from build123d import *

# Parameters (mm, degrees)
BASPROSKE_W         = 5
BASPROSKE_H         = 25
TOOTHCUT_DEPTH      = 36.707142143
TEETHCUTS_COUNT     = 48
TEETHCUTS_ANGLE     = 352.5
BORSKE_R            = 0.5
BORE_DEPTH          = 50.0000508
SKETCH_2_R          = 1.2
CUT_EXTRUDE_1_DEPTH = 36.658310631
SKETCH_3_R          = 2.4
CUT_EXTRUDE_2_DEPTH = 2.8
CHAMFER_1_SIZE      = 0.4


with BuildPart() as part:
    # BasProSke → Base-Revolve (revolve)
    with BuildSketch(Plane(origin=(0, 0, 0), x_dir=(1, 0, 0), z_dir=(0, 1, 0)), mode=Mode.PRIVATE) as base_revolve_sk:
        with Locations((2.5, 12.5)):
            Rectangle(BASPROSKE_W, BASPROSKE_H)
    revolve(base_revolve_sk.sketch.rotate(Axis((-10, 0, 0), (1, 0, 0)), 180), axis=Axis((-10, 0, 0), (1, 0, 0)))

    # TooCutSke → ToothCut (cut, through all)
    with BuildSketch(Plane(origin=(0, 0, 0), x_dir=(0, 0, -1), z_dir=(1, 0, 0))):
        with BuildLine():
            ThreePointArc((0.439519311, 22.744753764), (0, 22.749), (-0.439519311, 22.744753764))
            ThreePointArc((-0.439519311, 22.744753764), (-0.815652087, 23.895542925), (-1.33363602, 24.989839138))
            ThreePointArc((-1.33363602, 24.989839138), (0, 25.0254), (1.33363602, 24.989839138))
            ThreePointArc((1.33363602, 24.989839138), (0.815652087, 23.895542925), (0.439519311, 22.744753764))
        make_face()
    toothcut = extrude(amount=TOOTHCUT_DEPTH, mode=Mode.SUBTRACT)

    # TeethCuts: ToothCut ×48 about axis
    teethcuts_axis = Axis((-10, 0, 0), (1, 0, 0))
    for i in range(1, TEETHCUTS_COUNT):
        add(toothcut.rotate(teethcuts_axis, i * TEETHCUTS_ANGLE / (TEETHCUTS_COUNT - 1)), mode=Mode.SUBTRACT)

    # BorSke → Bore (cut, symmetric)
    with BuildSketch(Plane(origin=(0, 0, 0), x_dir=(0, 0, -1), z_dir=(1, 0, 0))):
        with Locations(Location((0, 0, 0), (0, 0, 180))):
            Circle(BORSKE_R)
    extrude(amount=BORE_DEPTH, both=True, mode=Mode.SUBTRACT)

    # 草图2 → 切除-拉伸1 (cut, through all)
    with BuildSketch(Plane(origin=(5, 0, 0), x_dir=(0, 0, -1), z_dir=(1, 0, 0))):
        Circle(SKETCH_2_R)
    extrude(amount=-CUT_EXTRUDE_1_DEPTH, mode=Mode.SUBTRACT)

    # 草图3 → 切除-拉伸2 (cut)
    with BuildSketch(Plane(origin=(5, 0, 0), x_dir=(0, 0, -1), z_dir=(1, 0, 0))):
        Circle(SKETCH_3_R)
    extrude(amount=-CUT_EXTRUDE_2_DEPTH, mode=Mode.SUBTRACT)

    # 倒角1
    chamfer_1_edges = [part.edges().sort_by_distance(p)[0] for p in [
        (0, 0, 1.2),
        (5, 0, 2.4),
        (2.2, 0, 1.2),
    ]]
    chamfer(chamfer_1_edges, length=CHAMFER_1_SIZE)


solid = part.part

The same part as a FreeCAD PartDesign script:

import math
import FreeCAD as App
import Part
import Sketcher
Q = App.Units.Quantity


def edges_at(feature, points):
    """Names of the edges that pass closest to the given points."""
    edges = feature.Shape.Edges
    near = lambda p: min(range(len(edges)), key=lambda i: edges[i].distToShape(Part.Vertex(*p))[0])
    return sorted({f"Edge{near(p) + 1}" for p in points})

doc = App.newDocument("Part")
body = doc.addObject("PartDesign::Body", "Body")

# Sketch on XZ plane
sketch1 = doc.addObject("Sketcher::SketchObject", "Sketch")
body.addObject(sketch1)
sketch1.AttachmentSupport = (doc.XZ_Plane, [""])
sketch1.MapMode = "FlatFace"
sketch1.addGeometry(Part.LineSegment(App.Vector(0, -25, 0), App.Vector(0, 0, 0)), False)
sketch1.addGeometry(Part.LineSegment(App.Vector(0, 0, 0), App.Vector(5, 0, 0)), False)
sketch1.addGeometry(Part.LineSegment(App.Vector(5, 0, 0), App.Vector(5, -25, 0)), False)
sketch1.addGeometry(Part.LineSegment(App.Vector(5, -25, 0), App.Vector(0, -25, 0)), False)
sketch1.addConstraint(Sketcher.Constraint("Coincident", 0, 2, 1, 1))
sketch1.addConstraint(Sketcher.Constraint("Coincident", 1, 2, 2, 1))
sketch1.addConstraint(Sketcher.Constraint("Coincident", 2, 2, 3, 1))
sketch1.addConstraint(Sketcher.Constraint("Coincident", 3, 2, 0, 1))
sketch1.addConstraint(Sketcher.Constraint("Vertical", 0))
sketch1.addConstraint(Sketcher.Constraint("Horizontal", 1))
sketch1.addConstraint(Sketcher.Constraint("Vertical", 2))
sketch1.addConstraint(Sketcher.Constraint("Horizontal", 3))
sketch1.addConstraint(Sketcher.Constraint("Coincident", 0, 2, -1, 1))
sketch1.addConstraint(Sketcher.Constraint("DistanceX", 1, 1, 1, 2, Q("5 mm")))
sketch1.addConstraint(Sketcher.Constraint("DistanceY", 0, 1, 0, 2, Q("25 mm")))
revolution = doc.addObject("PartDesign::Revolution", "Revolution")
body.addObject(revolution)
revolution.Profile = sketch1
revolution.ReferenceAxis = (sketch1, ["H_Axis"])
revolution.Angle = 360

# Sketch on YZ plane
sketch2 = doc.addObject("Sketcher::SketchObject", "Sketch001")
body.addObject(sketch2)
sketch2.AttachmentSupport = (doc.YZ_Plane, [""])
sketch2.MapMode = "FlatFace"
sketch2.addGeometry(Part.ArcOfCircle(Part.Circle(App.Vector(0, 0, 0), App.Vector(0, 0, 1), 22.7), math.radians(-1.11), math.radians(1.11)), False)
sketch2.addGeometry(Part.ArcOfCircle(Part.Circle(App.Vector(20.3, -9.7, 0), App.Vector(0, 0, 1), 9.6), math.radians(61.05), math.radians(75.52)), False)
sketch2.addGeometry(Part.ArcOfCircle(Part.Circle(App.Vector(0, 0, 0), App.Vector(0, 0, 1), 25), math.radians(-3.05), math.radians(3.05)), False)
sketch2.addGeometry(Part.ArcOfCircle(Part.Circle(App.Vector(20.3, 9.7, 0), App.Vector(0, 0, 1), 9.6), math.radians(-75.52), math.radians(-61.05)), False)
sketch2.addConstraint(Sketcher.Constraint("Coincident", 0, 1, 1, 2))
sketch2.addConstraint(Sketcher.Constraint("Coincident", 1, 1, 2, 1))
sketch2.addConstraint(Sketcher.Constraint("Coincident", 2, 2, 3, 2))
sketch2.addConstraint(Sketcher.Constraint("Coincident", 3, 1, 0, 2))
sketch2.addConstraint(Sketcher.Constraint("Coincident", 0, 3, -1, 1))
sketch2.addConstraint(Sketcher.Constraint("Coincident", 2, 3, -1, 1))
sketch2.addConstraint(Sketcher.Constraint("Equal", 1, 3))
sketch2.addConstraint(Sketcher.Constraint("Symmetric", 1, 3, 3, 3, -1))
sketch2.addConstraint(Sketcher.Constraint("Radius", 1, Q("9.6 mm")))
sketch2.addConstraint(Sketcher.Constraint("Radius", 0, Q("22.749001 mm")))
sketch2.addConstraint(Sketcher.Constraint("Radius", 2, Q("25.0254 mm")))
sketch2.addConstraint(Sketcher.Constraint("DistanceY", 0, 1, -1, 1, Q("0.439519 mm")))
sketch2.addConstraint(Sketcher.Constraint("DistanceX", -1, 1, 2, 2, Q("24.989839 mm")))
pocket1 = doc.addObject("PartDesign::Pocket", "Pocket")
body.addObject(pocket1)
pocket1.Profile = sketch2
pocket1.Type = "ThroughAll"
pocket1.Reversed = True
doc.recompute()

polarpattern = doc.addObject("PartDesign::PolarPattern", "PolarPattern")
body.addObject(polarpattern)
polarpattern.Originals = [pocket1]
polarpattern.Axis = (doc.X_Axis, [""])
polarpattern.Angle = 360
polarpattern.Occurrences = 48
body.Tip = polarpattern

# Sketch on YZ plane
sketch3 = doc.addObject("Sketcher::SketchObject", "Sketch002")
body.addObject(sketch3)
sketch3.AttachmentSupport = (doc.YZ_Plane, [""])
sketch3.MapMode = "FlatFace"
sketch3.addGeometry(Part.Circle(App.Vector(0, 0, 0), App.Vector(0, 0, 1), 0.5), False)
sketch3.addConstraint(Sketcher.Constraint("Coincident", 0, 3, -1, 1))
sketch3.addConstraint(Sketcher.Constraint("Diameter", 0, Q("1 mm")))
pocket2 = doc.addObject("PartDesign::Pocket", "Pocket001")
body.addObject(pocket2)
pocket2.Profile = sketch3
pocket2.Length = 100.000102
pocket2.Midplane = True

# Sketch on YZ plane
sketch4 = doc.addObject("Sketcher::SketchObject", "Sketch003")
body.addObject(sketch4)
sketch4.AttachmentSupport = (doc.YZ_Plane, [""])
sketch4.MapMode = "FlatFace"
sketch4.AttachmentOffset = App.Placement(App.Vector(0, 0, 5), App.Rotation())
sketch4.addGeometry(Part.Circle(App.Vector(0, 0, 0), App.Vector(0, 0, 1), 1.2), False)
sketch4.addConstraint(Sketcher.Constraint("Coincident", 0, 3, -1, 1))
sketch4.addConstraint(Sketcher.Constraint("Diameter", 0, Q("2.4 mm")))
pocket3 = doc.addObject("PartDesign::Pocket", "Pocket002")
body.addObject(pocket3)
pocket3.Profile = sketch4
pocket3.Type = "ThroughAll"

# Sketch on YZ plane
sketch5 = doc.addObject("Sketcher::SketchObject", "Sketch004")
body.addObject(sketch5)
sketch5.AttachmentSupport = (doc.YZ_Plane, [""])
sketch5.MapMode = "FlatFace"
sketch5.AttachmentOffset = App.Placement(App.Vector(0, 0, 5), App.Rotation())
sketch5.addGeometry(Part.Circle(App.Vector(0, 0, 0), App.Vector(0, 0, 1), 2.4), False)
sketch5.addConstraint(Sketcher.Constraint("Coincident", 0, 3, -1, 1))
sketch5.addConstraint(Sketcher.Constraint("Diameter", 0, Q("4.8 mm")))
pocket4 = doc.addObject("PartDesign::Pocket", "Pocket003")
body.addObject(pocket4)
pocket4.Profile = sketch5
pocket4.Length = 2.8
doc.recompute()

chamfer = doc.addObject("PartDesign::Chamfer", "Chamfer")
body.addObject(chamfer)
chamfer.Base = (pocket4, edges_at(pocket4, [(0, 0, 1.2), (5, 0, 2.4), (2.2, 0, 1.2)]))
chamfer.Size = 0.4

doc.recompute()
